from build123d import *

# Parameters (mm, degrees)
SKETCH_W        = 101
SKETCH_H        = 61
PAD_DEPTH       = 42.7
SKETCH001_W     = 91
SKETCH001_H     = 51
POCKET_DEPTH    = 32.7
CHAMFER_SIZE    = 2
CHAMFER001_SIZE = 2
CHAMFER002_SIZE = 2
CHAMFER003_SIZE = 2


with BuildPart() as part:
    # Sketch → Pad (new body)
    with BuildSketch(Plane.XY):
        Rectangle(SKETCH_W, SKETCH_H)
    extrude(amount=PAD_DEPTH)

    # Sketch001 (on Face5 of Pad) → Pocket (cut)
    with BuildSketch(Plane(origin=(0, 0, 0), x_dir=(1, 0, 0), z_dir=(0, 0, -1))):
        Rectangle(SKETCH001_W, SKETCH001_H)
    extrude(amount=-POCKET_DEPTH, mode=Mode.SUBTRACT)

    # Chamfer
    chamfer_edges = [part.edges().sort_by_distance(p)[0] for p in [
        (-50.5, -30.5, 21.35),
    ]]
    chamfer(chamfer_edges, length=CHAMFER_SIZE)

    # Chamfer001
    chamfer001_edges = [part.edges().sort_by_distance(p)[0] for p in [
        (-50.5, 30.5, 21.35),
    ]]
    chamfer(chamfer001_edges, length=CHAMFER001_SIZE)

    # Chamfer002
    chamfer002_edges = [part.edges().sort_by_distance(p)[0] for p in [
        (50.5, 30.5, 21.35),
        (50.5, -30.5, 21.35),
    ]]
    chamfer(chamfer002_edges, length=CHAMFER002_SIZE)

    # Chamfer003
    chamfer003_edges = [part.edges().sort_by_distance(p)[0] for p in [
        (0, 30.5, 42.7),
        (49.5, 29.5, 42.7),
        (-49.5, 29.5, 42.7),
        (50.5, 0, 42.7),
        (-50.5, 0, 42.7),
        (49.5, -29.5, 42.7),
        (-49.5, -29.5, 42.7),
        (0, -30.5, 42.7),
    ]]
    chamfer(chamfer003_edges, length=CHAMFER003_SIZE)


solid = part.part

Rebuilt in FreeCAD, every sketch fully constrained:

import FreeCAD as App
import Part
import Sketcher
from FreeCAD import Vector


def edges_at(feature, points):
    """Names of the edges that pass closest to the given points."""
    edges = feature.Shape.Edges
    near = lambda p: min(range(len(edges)), key=lambda i: edges[i].distToShape(Part.Vertex(*p))[0])
    return sorted({f"Edge{near(p) + 1}" for p in points})

doc = App.newDocument("Part")
params = doc.addObject("Spreadsheet::Sheet", "Params")
for row, (alias, value) in enumerate([
    ("sketch1_width", "101 mm"),
    ("sketch1_height", "61 mm"),
    ("pad1_length", "42.7 mm"),
    ("sketch2_width", "91 mm"),
    ("sketch2_height", "51 mm"),
    ("pocket1_length", "32.7 mm"),
    ("chamfer_size", "2 mm"),
    ("chamfer2_size", "2 mm"),
    ("chamfer3_size", "2 mm"),
    ("chamfer4_size", "2 mm"),
], start=1):
    params.set(f"A{row}", alias)
    params.set(f"B{row}", "=" + value)
    params.setAlias(f"B{row}", alias)

body = doc.addObject("PartDesign::Body", "Body")

# Sketch on XY plane
sketch1 = body.newObject("Sketcher::SketchObject", "Sketch")
sketch1.AttachmentSupport = (doc.getObject("XY_Plane"), [""])
sketch1.MapMode = "FlatFace"
sketch1.addGeometry(Part.LineSegment(Vector(-50, 30, 0), Vector(-50, -30, 0)), False)
sketch1.addGeometry(Part.LineSegment(Vector(-50, -30, 0), Vector(50, -30, 0)), False)
sketch1.addGeometry(Part.LineSegment(Vector(50, -30, 0), Vector(50, 30, 0)), False)
sketch1.addGeometry(Part.LineSegment(Vector(50, 30, 0), Vector(-50, 30, 0)), False)
sketch1.addConstraint(Sketcher.Constraint("Coincident", 0, 2, 1, 1))
sketch1.addConstraint(Sketcher.Constraint("Coincident", 1, 2, 2, 1))
sketch1.addConstraint(Sketcher.Constraint("Coincident", 2, 2, 3, 1))
sketch1.addConstraint(Sketcher.Constraint("Coincident", 3, 2, 0, 1))
sketch1.addConstraint(Sketcher.Constraint("Vertical", 0))
sketch1.addConstraint(Sketcher.Constraint("Horizontal", 1))
sketch1.addConstraint(Sketcher.Constraint("Vertical", 2))
sketch1.addConstraint(Sketcher.Constraint("Horizontal", 3))
sketch1.addConstraint(Sketcher.Constraint("Symmetric", 0, 2, 2, 2, -1, 1))
sketch1.addConstraint(Sketcher.Constraint("DistanceX", 1, 1, 1, 2, 101.0))
sketch1.addConstraint(Sketcher.Constraint("DistanceY", 0, 2, 0, 1, 61.0))
sketch1.setExpression("Constraints[9]", "Params.sketch1_width")
sketch1.setExpression("Constraints[10]", "Params.sketch1_height")
pad1 = body.newObject("PartDesign::Pad", "Pad")
pad1.Profile = sketch1
pad1.setExpression("Length", "Params.pad1_length")

# Sketch on XY plane
sketch2 = body.newObject("Sketcher::SketchObject", "Sketch001")
sketch2.AttachmentSupport = (doc.getObject("XY_Plane"), [""])
sketch2.MapMode = "FlatFace"
sketch2.addGeometry(Part.LineSegment(Vector(-46, -26, 0), Vector(-46, 26, 0)), False)
sketch2.addGeometry(Part.LineSegment(Vector(-46, 26, 0), Vector(46, 26, 0)), False)
sketch2.addGeometry(Part.LineSegment(Vector(46, 26, 0), Vector(46, -26, 0)), False)
sketch2.addGeometry(Part.LineSegment(Vector(46, -26, 0), Vector(-46, -26, 0)), False)
sketch2.addConstraint(Sketcher.Constraint("Coincident", 0, 2, 1, 1))
sketch2.addConstraint(Sketcher.Constraint("Coincident", 1, 2, 2, 1))
sketch2.addConstraint(Sketcher.Constraint("Coincident", 2, 2, 3, 1))
sketch2.addConstraint(Sketcher.Constraint("Coincident", 3, 2, 0, 1))
sketch2.addConstraint(Sketcher.Constraint("Vertical", 0))
sketch2.addConstraint(Sketcher.Constraint("Horizontal", 1))
sketch2.addConstraint(Sketcher.Constraint("Vertical", 2))
sketch2.addConstraint(Sketcher.Constraint("Horizontal", 3))
sketch2.addConstraint(Sketcher.Constraint("Symmetric", 0, 2, 2, 2, -1, 1))
sketch2.addConstraint(Sketcher.Constraint("DistanceX", 1, 1, 1, 2, 91.0))
sketch2.addConstraint(Sketcher.Constraint("DistanceY", 0, 1, 0, 2, 51.0))
sketch2.setExpression("Constraints[9]", "Params.sketch2_width")
sketch2.setExpression("Constraints[10]", "Params.sketch2_height")
pocket1 = body.newObject("PartDesign::Pocket", "Pocket")
pocket1.Profile = sketch2
pocket1.setExpression("Length", "Params.pocket1_length")
pocket1.Reversed = True
doc.recompute()

chamfer = body.newObject("PartDesign::Chamfer", "Chamfer")
chamfer.Base = (pocket1, edges_at(pocket1, [(-50.5, -30.5, 21.35)]))
chamfer.setExpression("Size", "Params.chamfer_size")
doc.recompute()

chamfer2 = body.newObject("PartDesign::Chamfer", "Chamfer001")
chamfer2.Base = (chamfer, edges_at(chamfer, [(-50.5, 30.5, 21.35)]))
chamfer2.setExpression("Size", "Params.chamfer2_size")
doc.recompute()

chamfer3 = body.newObject("PartDesign::Chamfer", "Chamfer002")
chamfer3.Base = (chamfer2, edges_at(chamfer2, [(50.5, 30.5, 21.35), (50.5, -30.5, 21.35)]))
chamfer3.setExpression("Size", "Params.chamfer3_size")
doc.recompute()

chamfer4 = body.newObject("PartDesign::Chamfer", "Chamfer003")
chamfer4.Base = (chamfer3, edges_at(chamfer3, [
    (0, 30.5, 42.7),
    (49.5, 29.5, 42.7),
    (-49.5, 29.5, 42.7),
    (50.5, 0, 42.7),
    (-50.5, 0, 42.7),
    (49.5, -29.5, 42.7),
    (-49.5, -29.5, 42.7),
    (0, -30.5, 42.7),
]))
chamfer4.setExpression("Size", "Params.chamfer4_size")

doc.recompute()
